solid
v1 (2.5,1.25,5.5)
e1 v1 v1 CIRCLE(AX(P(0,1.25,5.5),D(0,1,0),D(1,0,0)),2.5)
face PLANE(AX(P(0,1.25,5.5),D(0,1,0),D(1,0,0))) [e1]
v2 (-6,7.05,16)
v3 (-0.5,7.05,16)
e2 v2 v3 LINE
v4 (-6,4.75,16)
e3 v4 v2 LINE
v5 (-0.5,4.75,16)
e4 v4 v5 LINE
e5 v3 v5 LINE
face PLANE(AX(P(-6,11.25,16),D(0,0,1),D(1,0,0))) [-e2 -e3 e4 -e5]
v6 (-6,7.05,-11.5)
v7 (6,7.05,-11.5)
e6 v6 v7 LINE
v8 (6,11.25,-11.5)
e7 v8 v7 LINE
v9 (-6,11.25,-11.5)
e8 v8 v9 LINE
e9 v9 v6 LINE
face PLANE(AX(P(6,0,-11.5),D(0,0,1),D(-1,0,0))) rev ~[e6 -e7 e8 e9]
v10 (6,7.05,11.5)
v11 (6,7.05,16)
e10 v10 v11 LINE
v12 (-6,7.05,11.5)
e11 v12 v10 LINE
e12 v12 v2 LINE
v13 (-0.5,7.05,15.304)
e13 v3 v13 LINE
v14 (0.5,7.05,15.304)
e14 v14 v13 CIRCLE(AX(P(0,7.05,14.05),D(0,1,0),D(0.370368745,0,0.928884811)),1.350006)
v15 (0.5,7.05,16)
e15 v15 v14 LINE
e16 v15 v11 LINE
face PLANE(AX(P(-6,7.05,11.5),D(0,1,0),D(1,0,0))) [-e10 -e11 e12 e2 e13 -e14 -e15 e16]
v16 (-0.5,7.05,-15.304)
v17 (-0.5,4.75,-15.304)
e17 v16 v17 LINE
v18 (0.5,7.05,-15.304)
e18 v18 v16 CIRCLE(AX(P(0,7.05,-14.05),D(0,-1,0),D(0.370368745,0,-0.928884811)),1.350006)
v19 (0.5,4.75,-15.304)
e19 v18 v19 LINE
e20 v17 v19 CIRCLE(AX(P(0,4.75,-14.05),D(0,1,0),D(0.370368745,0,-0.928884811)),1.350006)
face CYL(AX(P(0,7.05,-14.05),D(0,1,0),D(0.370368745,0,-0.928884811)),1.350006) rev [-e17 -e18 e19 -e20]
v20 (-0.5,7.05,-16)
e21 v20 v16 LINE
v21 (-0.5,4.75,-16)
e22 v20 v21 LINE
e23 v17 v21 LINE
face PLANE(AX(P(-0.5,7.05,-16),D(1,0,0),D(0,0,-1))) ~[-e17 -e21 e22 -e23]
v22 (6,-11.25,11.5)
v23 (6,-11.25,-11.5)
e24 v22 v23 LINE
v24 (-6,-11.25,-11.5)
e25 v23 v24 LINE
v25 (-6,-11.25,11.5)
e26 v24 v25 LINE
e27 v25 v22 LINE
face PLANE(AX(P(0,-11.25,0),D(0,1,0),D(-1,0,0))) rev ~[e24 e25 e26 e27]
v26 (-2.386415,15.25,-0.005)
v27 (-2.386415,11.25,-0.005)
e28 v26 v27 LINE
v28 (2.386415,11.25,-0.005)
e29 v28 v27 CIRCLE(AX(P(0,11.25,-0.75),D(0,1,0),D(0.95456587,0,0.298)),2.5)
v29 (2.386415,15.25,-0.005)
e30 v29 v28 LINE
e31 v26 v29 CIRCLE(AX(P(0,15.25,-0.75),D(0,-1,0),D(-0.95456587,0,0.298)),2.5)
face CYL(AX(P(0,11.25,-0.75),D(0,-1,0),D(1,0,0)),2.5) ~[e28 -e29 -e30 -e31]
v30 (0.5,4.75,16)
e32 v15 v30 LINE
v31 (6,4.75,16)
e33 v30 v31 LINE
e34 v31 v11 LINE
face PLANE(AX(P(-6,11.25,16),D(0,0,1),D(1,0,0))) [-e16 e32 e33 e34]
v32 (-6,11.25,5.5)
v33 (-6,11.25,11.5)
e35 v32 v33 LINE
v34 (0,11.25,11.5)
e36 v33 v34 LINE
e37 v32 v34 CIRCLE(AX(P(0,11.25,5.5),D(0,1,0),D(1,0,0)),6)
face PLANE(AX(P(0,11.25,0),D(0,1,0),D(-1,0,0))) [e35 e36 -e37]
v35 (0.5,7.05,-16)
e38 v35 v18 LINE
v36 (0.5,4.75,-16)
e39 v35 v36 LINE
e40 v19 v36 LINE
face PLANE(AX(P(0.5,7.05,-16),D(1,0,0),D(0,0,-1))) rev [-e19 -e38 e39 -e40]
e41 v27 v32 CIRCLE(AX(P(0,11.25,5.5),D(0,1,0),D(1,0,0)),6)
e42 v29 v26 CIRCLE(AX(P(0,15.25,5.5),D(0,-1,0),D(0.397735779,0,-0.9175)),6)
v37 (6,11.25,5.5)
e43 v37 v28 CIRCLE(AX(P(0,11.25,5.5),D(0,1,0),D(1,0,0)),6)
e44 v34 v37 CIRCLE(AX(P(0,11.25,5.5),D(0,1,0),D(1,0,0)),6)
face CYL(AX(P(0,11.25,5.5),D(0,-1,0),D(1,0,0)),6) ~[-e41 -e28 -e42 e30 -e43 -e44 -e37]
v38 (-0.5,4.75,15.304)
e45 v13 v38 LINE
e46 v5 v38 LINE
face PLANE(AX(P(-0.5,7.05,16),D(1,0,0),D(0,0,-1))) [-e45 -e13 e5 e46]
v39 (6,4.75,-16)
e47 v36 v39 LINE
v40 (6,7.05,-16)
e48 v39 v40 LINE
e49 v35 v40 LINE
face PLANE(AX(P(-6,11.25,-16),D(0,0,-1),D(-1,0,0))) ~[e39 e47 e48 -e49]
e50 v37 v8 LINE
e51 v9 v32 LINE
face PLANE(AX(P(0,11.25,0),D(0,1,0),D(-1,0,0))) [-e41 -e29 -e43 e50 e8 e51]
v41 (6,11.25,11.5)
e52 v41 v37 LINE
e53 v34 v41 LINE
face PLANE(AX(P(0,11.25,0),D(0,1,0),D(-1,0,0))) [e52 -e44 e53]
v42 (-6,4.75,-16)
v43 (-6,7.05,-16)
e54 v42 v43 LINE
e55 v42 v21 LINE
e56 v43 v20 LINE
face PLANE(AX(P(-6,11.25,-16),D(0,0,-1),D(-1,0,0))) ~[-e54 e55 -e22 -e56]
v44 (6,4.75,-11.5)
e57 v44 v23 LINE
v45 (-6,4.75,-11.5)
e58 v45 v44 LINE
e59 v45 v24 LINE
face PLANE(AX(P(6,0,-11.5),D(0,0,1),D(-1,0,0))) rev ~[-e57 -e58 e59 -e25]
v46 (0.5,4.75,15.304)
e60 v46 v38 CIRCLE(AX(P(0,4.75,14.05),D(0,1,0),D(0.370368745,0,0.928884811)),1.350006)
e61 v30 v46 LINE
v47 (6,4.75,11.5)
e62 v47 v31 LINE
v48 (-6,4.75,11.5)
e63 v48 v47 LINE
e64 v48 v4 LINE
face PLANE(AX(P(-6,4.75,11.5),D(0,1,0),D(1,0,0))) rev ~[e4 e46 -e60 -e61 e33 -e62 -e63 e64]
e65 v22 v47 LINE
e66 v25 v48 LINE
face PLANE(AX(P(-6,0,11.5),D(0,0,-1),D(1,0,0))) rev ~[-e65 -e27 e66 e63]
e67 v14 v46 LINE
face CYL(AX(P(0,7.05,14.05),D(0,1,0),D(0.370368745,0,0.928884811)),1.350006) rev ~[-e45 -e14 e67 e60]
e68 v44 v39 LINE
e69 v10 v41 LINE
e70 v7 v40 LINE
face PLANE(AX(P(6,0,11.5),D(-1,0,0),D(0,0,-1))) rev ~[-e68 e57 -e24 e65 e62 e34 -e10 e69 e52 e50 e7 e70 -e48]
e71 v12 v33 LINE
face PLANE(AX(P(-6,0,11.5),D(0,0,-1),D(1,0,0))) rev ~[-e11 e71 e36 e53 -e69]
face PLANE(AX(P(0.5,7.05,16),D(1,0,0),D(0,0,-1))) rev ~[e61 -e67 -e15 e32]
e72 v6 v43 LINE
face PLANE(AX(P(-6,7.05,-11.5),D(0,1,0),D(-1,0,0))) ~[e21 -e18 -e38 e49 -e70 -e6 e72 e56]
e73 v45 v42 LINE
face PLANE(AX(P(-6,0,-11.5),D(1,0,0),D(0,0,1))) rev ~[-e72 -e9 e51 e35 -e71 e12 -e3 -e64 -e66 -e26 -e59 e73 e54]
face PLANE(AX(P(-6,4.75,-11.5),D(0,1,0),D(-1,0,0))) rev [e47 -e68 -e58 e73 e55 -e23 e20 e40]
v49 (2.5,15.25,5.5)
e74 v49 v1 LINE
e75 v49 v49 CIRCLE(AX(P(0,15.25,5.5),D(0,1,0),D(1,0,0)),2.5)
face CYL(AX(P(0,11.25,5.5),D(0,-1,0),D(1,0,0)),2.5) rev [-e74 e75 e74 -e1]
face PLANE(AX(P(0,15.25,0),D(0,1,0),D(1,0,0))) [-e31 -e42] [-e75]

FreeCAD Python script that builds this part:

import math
import FreeCAD as App
import Part
import Sketcher

V = App.Vector
Q = App.Units.Quantity


def add_polygon(sketch, points):
    """Adds a closed chain of lines whose ends are joined by coincident constraints."""
    first, n = sketch.GeometryCount, len(points)
    for a, b in zip(points, points[1:] + points[:1]):
        sketch.addGeometry(Part.LineSegment(App.Vector(*a, 0), App.Vector(*b, 0)), False)
    for i in range(n):
        sketch.addConstraint(Sketcher.Constraint("Coincident", first + i, 2, first + (i + 1) % n, 1))

doc = App.newDocument("Part")
body = doc.addObject("PartDesign::Body", "Body")

# Sketch on XZ plane
sketch1 = doc.addObject("Sketcher::SketchObject", "Sketch")
body.addObject(sketch1)
sketch1.AttachmentSupport = (doc.XZ_Plane, [""])
sketch1.MapMode = "FlatFace"
add_polygon(sketch1, [(-6, -12), (-6, 12), (6, 12), (6, -12)])  # lines 0-3
sketch1.addConstraint([
    Sketcher.Constraint("Vertical", 0),
    Sketcher.Constraint("Horizontal", 1),
    Sketcher.Constraint("Vertical", 2),
    Sketcher.Constraint("Horizontal", 3),
    Sketcher.Constraint("Symmetric", 0, 2, 2, 2, -1, 1),
    Sketcher.Constraint("DistanceX", 1, 1, 1, 2, Q("12 mm")),
    Sketcher.Constraint("DistanceY", 0, 1, 0, 2, Q("23 mm")),
])
pad1 = doc.addObject("PartDesign::Pad", "Pad")
body.addObject(pad1)
pad1.Profile = sketch1
pad1.Length = 22.5
pad1.Midplane = True

# Sketch on XY plane
sketch2 = doc.addObject("Sketcher::SketchObject", "Sketch001")
body.addObject(sketch2)
sketch2.AttachmentSupport = (doc.XY_Plane, [""])
sketch2.MapMode = "FlatFace"
sketch2.AttachmentOffset = App.Placement(V(0, 0, 11.5), App.Rotation())
add_polygon(sketch2, [(-6, 4.8), (6, 4.8), (6, 7), (-6, 7)])  # lines 0-3
sketch2.addConstraint([
    Sketcher.Constraint("Horizontal", 0),
    Sketcher.Constraint("Vertical", 1),
    Sketcher.Constraint("Horizontal", 2),
    Sketcher.Constraint("Vertical", 3),
    Sketcher.Constraint("DistanceY", 1, 1, 1, 2, Q("2.3 mm")),
    Sketcher.Constraint("DistanceX", 0, 1, 0, 2, Q("12 mm")),
    Sketcher.Constraint("DistanceX", -1, 1, 0, 2, Q("6 mm")),
    Sketcher.Constraint("DistanceY", -1, 1, 0, 2, Q("4.75 mm")),
])
pad2 = doc.addObject("PartDesign::Pad", "Pad001")
body.addObject(pad2)
pad2.Profile = sketch2
pad2.Length = 4.5
doc.recompute()

mirrored = doc.addObject("PartDesign::Mirrored", "Mirrored")
body.addObject(mirrored)
mirrored.Originals = [pad2]
mirrored.MirrorPlane = (doc.XY_Plane, [""])
body.Tip = mirrored

# Sketch on XZ plane
sketch3 = doc.addObject("Sketcher::SketchObject", "Sketch002")
body.addObject(sketch3)
sketch3.AttachmentSupport = (doc.XZ_Plane, [""])
sketch3.MapMode = "FlatFace"
sketch3.AttachmentOffset = App.Placement(V(0, 0, -7.05), App.Rotation())
sketch3.addGeometry([
    Part.LineSegment(V(0.5, 16, 0), V(0.5, 15.3, 0)),
    Part.ArcOfCircle(Part.Circle(V(0, 14.1, 0), V(0, 0, 1), 1.4), math.radians(112), math.radians(428)),
    Part.LineSegment(V(-0.5, 15.3, 0), V(-0.5, 16, 0)),
    Part.LineSegment(V(-0.5, 16, 0), V(0.5, 16, 0)),
], False)
sketch3.addConstraint([
    Sketcher.Constraint("Coincident", 0, 2, 1, 2),
    Sketcher.Constraint("Coincident", 1, 1, 2, 1),
    Sketcher.Constraint("Coincident", 2, 2, 3, 1),
    Sketcher.Constraint("Coincident", 3, 2, 0, 1),
    Sketcher.Constraint("Vertical", 0),
    Sketcher.Constraint("Vertical", 2),
    Sketcher.Constraint("Horizontal", 3),
    Sketcher.Constraint("Symmetric", 0, 2, 1, 1, -2),
    Sketcher.Constraint("Radius", 1, Q("1.35 mm")),
    Sketcher.Constraint("DistanceX", -1, 1, 0, 2, Q("0.5 mm")),
    Sketcher.Constraint("DistanceY", 1, 3, 2, 2, Q("1.95 mm")),
    Sketcher.Constraint("DistanceY", -1, 1, 2, 2, Q("16 mm")),
])
pocket1 = doc.addObject("PartDesign::Pocket", "Pocket")
body.addObject(pocket1)
pocket1.Profile = sketch3
pocket1.Length = 4.5
pocket1.Reversed = True
doc.recompute()

mirrored2 = doc.addObject("PartDesign::Mirrored", "Mirrored001")
body.addObject(mirrored2)
mirrored2.Originals = [pocket1]
mirrored2.MirrorPlane = (doc.XY_Plane, [""])
body.Tip = mirrored2

# Sketch on XZ plane
sketch4 = doc.addObject("Sketcher::SketchObject", "Sketch003")
body.addObject(sketch4)
sketch4.AttachmentSupport = (doc.XZ_Plane, [""])
sketch4.MapMode = "FlatFace"
sketch4.AttachmentOffset = App.Placement(V(0, 0, -11.25), App.Rotation())
sketch4.addGeometry([
    Part.Circle(V(0, 5.5, 0), V(0, 0, 1), 6),
    Part.Circle(V(0, 5.5, 0), V(0, 0, 1), 2.5),
], False)
sketch4.addConstraint([
    Sketcher.Constraint("Coincident", 1, 3, 0, 3),
    Sketcher.Constraint("PointOnObject", 0, 3, -2),
    Sketcher.Constraint("Diameter", 1, Q("5 mm")),
    Sketcher.Constraint("Diameter", 0, Q("12 mm")),
    Sketcher.Constraint("DistanceY", -1, 1, 0, 3, Q("5.5 mm")),
])
pad3 = doc.addObject("PartDesign::Pad", "Pad002")
body.addObject(pad3)
pad3.Profile = sketch4
pad3.Length = 4
pad3.Reversed = True

# Sketch on XZ plane
sketch5 = doc.addObject("Sketcher::SketchObject", "Sketch004")
body.addObject(sketch5)
sketch5.AttachmentSupport = (doc.XZ_Plane, [""])
sketch5.MapMode = "FlatFace"
sketch5.AttachmentOffset = App.Placement(V(0, 0, -11.25), App.Rotation())
sketch5.addGeometry(Part.Circle(V(0, -0.8, 0), V(0, 0, 1), 2.5), False)
sketch5.addConstraint([
    Sketcher.Constraint("PointOnObject", 0, 3, -2),
    Sketcher.Constraint("Diameter", 0, Q("5 mm")),
    Sketcher.Constraint("DistanceY", 0, 3, -1, 1, Q("0.75 mm")),
])
pad4 = doc.addObject("PartDesign::Pad", "Pad003")
body.addObject(pad4)
pad4.Profile = sketch5
pad4.Length = 4
pad4.Reversed = True

# Sketch on XZ plane
sketch6 = doc.addObject("Sketcher::SketchObject", "Sketch005")
body.addObject(sketch6)
sketch6.AttachmentSupport = (doc.XZ_Plane, [""])
sketch6.MapMode = "FlatFace"
sketch6.AttachmentOffset = App.Placement(V(0, 0, -11.25), App.Rotation())
sketch6.addGeometry(Part.Circle(V(0, 5.5, 0), V(0, 0, 1), 2.5), False)
sketch6.addConstraint([
    Sketcher.Constraint("PointOnObject", 0, 3, -2),
    Sketcher.Constraint("Diameter", 0, Q("5 mm")),
    Sketcher.Constraint("DistanceY", -1, 1, 0, 3, Q("5.5 mm")),
])
pocket2 = doc.addObject("PartDesign::Pocket", "Pocket001")
body.addObject(pocket2)
pocket2.Profile = sketch6
pocket2.Length = 10
pocket2.Reversed = True

doc.recompute()
